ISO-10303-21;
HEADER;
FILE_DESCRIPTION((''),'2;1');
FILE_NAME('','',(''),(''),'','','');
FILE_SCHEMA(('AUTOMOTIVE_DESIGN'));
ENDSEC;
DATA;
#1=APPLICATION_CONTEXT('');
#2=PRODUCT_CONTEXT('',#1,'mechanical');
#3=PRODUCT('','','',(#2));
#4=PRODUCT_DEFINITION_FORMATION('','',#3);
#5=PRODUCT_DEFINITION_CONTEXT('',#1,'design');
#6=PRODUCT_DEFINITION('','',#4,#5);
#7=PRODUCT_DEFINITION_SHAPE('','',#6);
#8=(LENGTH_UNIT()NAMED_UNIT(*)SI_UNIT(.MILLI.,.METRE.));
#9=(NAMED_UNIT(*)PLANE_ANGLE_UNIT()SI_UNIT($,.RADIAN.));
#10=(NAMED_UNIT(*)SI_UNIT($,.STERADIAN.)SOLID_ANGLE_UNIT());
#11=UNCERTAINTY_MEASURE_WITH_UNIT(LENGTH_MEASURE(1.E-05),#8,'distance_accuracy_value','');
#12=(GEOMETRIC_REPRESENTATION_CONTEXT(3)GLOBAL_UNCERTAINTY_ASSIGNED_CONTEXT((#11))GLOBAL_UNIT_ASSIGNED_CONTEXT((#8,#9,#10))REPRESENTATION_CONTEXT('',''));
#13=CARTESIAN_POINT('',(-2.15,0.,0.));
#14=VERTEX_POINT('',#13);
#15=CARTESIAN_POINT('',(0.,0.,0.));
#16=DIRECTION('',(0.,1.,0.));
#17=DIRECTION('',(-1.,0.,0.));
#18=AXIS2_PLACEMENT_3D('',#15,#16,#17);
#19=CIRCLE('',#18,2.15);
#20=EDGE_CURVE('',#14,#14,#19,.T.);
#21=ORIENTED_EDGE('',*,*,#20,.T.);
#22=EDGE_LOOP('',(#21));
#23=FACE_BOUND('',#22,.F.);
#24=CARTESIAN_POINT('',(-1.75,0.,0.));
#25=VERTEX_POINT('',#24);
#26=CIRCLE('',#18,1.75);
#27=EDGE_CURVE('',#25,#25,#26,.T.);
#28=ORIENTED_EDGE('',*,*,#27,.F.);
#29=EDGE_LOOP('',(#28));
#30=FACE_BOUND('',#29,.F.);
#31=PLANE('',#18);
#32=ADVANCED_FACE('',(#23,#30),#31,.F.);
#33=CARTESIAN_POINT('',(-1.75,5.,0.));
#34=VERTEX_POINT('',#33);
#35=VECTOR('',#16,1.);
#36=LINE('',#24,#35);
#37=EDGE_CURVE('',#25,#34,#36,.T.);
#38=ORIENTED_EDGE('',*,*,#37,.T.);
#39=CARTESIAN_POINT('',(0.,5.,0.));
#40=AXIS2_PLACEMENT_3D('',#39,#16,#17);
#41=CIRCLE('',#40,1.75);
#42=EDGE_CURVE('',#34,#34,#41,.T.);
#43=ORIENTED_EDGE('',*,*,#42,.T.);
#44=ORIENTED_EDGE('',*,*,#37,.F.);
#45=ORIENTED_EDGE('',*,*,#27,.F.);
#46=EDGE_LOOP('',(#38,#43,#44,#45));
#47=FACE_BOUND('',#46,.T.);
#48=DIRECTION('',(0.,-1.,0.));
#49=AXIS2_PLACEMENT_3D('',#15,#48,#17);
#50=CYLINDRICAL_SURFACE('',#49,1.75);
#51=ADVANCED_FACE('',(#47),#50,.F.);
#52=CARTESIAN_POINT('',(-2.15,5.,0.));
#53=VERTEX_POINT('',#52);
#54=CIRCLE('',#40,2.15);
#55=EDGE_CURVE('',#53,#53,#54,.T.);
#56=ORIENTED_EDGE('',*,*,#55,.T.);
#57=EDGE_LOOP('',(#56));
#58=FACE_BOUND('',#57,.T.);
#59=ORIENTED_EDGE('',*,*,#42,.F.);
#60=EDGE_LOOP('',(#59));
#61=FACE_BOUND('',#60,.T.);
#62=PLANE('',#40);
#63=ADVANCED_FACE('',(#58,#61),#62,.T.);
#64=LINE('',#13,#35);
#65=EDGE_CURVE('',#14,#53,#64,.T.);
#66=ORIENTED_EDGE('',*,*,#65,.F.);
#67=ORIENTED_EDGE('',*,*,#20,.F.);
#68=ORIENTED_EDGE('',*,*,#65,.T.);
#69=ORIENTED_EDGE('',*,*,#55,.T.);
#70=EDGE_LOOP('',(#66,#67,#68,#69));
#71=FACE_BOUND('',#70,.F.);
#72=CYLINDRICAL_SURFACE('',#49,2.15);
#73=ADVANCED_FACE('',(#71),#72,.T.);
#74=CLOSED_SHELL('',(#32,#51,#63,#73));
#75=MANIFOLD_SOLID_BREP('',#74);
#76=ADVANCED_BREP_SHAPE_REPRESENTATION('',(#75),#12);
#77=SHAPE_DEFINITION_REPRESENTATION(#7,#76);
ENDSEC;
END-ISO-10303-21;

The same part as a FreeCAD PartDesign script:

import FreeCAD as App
import Part
import Sketcher

doc = App.newDocument("Part")
params = doc.addObject("Spreadsheet::Sheet", "Params")
for row, (alias, value) in enumerate([
    ("sketch1_diameter", "4.3 mm"),
    ("sketch1_diameter2", "3.5 mm"),
    ("pad1_length", "5 mm"),
], start=1):
    params.set(f"A{row}", alias)
    params.set(f"B{row}", "=" + value)
    params.setAlias(f"B{row}", alias)

body = doc.addObject("PartDesign::Body", "Body")

# Sketch on XZ plane
sketch1 = body.newObject("Sketcher::SketchObject", "Sketch")
sketch1.AttachmentSupport = (doc.getObject("XZ_Plane"), [""])
sketch1.MapMode = "FlatFace"
sketch1.addGeometry([
    Part.Circle(App.Vector(0, 0, 0), App.Vector(0, 0, 1), 2.1),
    Part.Circle(App.Vector(0, 0, 0), App.Vector(0, 0, 1), 1.8),
], False)
sketch1.addConstraint([
    Sketcher.Constraint("Coincident", 0, 3, -1, 1),
    Sketcher.Constraint("Coincident", 1, 3, -1, 1),
    Sketcher.Constraint("Diameter", 0, 4.3),
    Sketcher.Constraint("Diameter", 1, 3.5),
])
sketch1.setExpression("Constraints[2]", "Params.sketch1_diameter")
sketch1.setExpression("Constraints[3]", "Params.sketch1_diameter2")
pad1 = body.newObject("PartDesign::Pad", "Pad")
pad1.Profile = sketch1
pad1.setExpression("Length", "Params.pad1_length")
pad1.Reversed = True

doc.recompute()
